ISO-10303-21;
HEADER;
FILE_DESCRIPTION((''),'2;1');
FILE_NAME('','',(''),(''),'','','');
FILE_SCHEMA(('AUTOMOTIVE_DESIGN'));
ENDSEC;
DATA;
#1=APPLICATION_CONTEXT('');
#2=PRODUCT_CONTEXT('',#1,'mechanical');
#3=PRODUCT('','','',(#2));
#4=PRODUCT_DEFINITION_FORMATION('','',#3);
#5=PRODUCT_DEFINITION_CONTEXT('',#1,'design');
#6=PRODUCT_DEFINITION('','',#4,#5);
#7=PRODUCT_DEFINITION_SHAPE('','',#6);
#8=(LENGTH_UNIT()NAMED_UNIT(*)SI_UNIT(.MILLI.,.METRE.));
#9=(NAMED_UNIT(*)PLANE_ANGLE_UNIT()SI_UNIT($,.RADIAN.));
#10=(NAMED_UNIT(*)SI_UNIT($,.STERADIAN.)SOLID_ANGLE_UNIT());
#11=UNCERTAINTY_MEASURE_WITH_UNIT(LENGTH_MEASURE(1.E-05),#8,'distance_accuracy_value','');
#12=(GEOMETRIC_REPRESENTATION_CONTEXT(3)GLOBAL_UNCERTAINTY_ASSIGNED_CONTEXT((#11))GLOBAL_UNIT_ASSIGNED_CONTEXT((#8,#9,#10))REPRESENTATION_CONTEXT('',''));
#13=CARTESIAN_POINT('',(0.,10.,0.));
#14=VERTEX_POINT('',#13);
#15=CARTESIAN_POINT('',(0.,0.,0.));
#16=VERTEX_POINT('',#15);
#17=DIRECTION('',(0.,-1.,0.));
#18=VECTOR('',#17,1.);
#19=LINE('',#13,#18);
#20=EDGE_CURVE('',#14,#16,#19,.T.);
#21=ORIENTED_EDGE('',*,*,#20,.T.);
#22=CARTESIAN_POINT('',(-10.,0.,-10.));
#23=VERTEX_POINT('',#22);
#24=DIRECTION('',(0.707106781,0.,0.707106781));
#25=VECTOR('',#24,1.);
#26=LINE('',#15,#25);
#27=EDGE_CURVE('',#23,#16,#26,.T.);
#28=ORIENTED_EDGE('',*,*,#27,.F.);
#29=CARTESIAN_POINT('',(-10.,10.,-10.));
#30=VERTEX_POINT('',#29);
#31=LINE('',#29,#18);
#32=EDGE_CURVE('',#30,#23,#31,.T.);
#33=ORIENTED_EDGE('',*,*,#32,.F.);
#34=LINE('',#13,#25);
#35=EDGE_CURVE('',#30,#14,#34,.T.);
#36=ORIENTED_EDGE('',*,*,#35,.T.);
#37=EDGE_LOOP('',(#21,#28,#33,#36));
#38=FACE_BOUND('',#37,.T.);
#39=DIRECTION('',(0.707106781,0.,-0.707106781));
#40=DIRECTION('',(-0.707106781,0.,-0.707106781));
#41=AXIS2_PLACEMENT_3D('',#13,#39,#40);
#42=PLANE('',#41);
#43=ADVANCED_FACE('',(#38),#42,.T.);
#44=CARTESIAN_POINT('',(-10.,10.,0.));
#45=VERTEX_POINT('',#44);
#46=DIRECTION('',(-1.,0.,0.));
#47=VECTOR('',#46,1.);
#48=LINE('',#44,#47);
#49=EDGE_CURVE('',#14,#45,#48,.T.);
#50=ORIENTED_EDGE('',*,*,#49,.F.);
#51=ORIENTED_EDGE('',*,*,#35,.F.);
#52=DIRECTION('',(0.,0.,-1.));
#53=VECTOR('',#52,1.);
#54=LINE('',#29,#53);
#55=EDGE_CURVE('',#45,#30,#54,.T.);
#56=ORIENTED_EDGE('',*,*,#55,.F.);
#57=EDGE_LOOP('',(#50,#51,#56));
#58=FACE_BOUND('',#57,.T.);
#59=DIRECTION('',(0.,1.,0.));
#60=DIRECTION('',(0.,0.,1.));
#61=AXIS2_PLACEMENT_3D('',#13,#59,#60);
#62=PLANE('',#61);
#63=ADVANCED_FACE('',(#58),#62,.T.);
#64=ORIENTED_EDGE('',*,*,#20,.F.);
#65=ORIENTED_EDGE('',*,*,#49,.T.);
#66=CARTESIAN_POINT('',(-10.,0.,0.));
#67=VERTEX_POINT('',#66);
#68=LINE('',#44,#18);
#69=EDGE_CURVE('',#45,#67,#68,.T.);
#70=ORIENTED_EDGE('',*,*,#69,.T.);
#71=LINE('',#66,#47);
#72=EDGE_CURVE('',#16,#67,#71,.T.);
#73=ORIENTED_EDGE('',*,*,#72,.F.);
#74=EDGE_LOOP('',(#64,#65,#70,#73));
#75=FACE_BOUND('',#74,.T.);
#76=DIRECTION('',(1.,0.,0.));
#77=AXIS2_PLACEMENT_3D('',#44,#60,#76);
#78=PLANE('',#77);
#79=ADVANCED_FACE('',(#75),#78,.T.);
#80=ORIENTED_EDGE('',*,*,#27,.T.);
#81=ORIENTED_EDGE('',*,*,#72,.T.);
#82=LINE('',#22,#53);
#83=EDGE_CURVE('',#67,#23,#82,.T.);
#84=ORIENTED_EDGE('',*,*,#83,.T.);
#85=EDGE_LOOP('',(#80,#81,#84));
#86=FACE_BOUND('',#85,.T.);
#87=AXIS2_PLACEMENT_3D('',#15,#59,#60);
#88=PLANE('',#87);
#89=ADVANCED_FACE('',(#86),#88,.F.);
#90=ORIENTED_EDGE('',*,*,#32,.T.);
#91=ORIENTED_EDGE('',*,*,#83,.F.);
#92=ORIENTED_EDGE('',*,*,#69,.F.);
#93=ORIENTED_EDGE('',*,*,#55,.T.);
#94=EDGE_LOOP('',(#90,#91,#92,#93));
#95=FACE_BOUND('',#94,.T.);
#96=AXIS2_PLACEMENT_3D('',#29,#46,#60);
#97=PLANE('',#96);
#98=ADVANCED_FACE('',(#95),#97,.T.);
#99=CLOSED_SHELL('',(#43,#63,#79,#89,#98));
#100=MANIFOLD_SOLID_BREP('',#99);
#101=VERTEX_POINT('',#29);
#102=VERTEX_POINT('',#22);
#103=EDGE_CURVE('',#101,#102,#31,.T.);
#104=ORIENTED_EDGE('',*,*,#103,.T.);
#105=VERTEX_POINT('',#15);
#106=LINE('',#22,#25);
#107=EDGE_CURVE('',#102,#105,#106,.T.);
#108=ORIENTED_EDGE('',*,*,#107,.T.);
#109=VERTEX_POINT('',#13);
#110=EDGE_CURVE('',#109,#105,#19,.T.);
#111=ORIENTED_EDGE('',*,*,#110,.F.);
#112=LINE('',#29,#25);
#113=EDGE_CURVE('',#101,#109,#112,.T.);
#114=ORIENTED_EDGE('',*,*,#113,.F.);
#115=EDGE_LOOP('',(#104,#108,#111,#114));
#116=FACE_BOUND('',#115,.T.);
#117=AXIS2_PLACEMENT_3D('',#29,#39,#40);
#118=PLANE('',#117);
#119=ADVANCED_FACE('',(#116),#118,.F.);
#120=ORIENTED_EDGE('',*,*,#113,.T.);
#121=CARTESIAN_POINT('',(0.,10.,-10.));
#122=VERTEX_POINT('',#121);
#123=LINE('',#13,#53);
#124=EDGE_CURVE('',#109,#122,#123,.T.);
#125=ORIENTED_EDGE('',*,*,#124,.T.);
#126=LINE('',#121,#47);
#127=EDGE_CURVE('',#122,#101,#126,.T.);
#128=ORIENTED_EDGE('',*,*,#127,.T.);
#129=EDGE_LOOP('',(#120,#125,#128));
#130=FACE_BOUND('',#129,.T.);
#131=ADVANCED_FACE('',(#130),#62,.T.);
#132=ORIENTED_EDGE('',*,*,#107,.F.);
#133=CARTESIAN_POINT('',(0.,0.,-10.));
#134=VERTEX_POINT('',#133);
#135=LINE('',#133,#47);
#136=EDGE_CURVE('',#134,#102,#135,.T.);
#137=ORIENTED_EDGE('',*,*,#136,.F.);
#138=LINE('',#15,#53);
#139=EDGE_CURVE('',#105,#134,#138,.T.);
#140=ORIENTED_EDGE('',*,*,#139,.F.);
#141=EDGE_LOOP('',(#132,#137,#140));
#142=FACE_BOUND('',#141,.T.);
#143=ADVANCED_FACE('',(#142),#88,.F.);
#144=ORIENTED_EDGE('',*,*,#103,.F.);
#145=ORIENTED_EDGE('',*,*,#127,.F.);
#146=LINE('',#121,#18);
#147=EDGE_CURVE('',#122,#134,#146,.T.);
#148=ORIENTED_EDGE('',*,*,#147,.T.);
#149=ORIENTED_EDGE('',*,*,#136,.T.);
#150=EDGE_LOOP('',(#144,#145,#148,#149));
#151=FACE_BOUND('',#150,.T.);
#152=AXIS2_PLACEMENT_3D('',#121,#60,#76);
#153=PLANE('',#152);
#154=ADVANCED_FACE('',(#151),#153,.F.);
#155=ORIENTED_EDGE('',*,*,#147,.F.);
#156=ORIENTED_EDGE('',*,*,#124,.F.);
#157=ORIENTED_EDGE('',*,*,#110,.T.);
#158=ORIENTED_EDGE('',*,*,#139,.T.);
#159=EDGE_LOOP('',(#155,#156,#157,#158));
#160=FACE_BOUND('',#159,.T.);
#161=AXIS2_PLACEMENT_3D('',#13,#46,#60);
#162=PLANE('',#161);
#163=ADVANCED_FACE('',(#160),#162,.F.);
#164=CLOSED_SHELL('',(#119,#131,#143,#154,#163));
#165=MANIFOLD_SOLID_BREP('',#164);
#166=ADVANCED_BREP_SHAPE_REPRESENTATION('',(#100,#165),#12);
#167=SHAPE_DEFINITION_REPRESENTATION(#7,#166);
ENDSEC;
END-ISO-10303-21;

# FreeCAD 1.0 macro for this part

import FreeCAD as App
import Part
import Sketcher

V = App.Vector

doc = App.newDocument("Part")
params = doc.addObject("Spreadsheet::Sheet", "Params")
for row, (alias, value) in enumerate([
    ("sketch1_width", "10 mm"),
    ("pad1_length", "10 mm"),
    ("sketch2_width", "10 mm"),
    ("pad2_length", "10 mm"),
], start=1):
    params.set(f"A{row}", alias)
    params.set(f"B{row}", "=" + value)
    params.setAlias(f"B{row}", alias)

body = doc.addObject("PartDesign::Body", "Body")

sketch1 = body.newObject("Sketcher::SketchObject", "Sketch")
sketch1.AttachmentSupport = (doc.getObject("XZ_Plane"), [""])
sketch1.MapMode = "FlatFace"
sketch1.addGeometry([
    Part.LineSegment(V(0, 0, 0), V(0, -10, 0)),
    Part.LineSegment(V(0, -10, 0), V(-10, -10, 0)),
    Part.LineSegment(V(-10, -10, 0), V(0, 0, 0)),
], False)
sketch1.addConstraint([
    Sketcher.Constraint("Coincident", 0, 2, 1, 1),
    Sketcher.Constraint("Coincident", 1, 2, 2, 1),
    Sketcher.Constraint("Coincident", 2, 2, 0, 1),
    Sketcher.Constraint("Vertical", 0),
    Sketcher.Constraint("Horizontal", 1),
    Sketcher.Constraint("Coincident", 2, 2, -1, 1),
    Sketcher.Constraint("Equal", 1, 0),
    Sketcher.Constraint("DistanceX", 1, 2, 1, 1, 10.0),
])
sketch1.setExpression("Constraints[7]", "Params.sketch1_width")
pad1 = body.newObject("PartDesign::Pad", "Pad")
pad1.Profile = sketch1
pad1.setExpression("Length", "Params.pad1_length")
pad1.Reversed = True
body2 = doc.addObject("PartDesign::Body", "Body001")

sketch2 = body2.newObject("Sketcher::SketchObject", "Sketch001")
sketch2.AttachmentSupport = (doc.getObject("XZ_Plane001"), [""])
sketch2.MapMode = "FlatFace"
sketch2.addGeometry([
    Part.LineSegment(V(-10, 0, 0), V(-10, -10, 0)),
    Part.LineSegment(V(-10, -10, 0), V(0, 0, 0)),
    Part.LineSegment(V(0, 0, 0), V(-10, 0, 0)),
], False)
sketch2.addConstraint([
    Sketcher.Constraint("Coincident", 0, 2, 1, 1),
    Sketcher.Constraint("Coincident", 1, 2, 2, 1),
    Sketcher.Constraint("Coincident", 2, 2, 0, 1),
    Sketcher.Constraint("Vertical", 0),
    Sketcher.Constraint("Horizontal", 2),
    Sketcher.Constraint("Coincident", 1, 2, -1, 1),
    Sketcher.Constraint("Equal", 2, 0),
    Sketcher.Constraint("DistanceX", 2, 2, 2, 1, 10.0),
])
sketch2.setExpression("Constraints[7]", "Params.sketch2_width")
pad2 = body2.newObject("PartDesign::Pad", "Pad001")
pad2.Profile = sketch2
pad2.setExpression("Length", "Params.pad2_length")
pad2.Reversed = True

doc.recompute()
